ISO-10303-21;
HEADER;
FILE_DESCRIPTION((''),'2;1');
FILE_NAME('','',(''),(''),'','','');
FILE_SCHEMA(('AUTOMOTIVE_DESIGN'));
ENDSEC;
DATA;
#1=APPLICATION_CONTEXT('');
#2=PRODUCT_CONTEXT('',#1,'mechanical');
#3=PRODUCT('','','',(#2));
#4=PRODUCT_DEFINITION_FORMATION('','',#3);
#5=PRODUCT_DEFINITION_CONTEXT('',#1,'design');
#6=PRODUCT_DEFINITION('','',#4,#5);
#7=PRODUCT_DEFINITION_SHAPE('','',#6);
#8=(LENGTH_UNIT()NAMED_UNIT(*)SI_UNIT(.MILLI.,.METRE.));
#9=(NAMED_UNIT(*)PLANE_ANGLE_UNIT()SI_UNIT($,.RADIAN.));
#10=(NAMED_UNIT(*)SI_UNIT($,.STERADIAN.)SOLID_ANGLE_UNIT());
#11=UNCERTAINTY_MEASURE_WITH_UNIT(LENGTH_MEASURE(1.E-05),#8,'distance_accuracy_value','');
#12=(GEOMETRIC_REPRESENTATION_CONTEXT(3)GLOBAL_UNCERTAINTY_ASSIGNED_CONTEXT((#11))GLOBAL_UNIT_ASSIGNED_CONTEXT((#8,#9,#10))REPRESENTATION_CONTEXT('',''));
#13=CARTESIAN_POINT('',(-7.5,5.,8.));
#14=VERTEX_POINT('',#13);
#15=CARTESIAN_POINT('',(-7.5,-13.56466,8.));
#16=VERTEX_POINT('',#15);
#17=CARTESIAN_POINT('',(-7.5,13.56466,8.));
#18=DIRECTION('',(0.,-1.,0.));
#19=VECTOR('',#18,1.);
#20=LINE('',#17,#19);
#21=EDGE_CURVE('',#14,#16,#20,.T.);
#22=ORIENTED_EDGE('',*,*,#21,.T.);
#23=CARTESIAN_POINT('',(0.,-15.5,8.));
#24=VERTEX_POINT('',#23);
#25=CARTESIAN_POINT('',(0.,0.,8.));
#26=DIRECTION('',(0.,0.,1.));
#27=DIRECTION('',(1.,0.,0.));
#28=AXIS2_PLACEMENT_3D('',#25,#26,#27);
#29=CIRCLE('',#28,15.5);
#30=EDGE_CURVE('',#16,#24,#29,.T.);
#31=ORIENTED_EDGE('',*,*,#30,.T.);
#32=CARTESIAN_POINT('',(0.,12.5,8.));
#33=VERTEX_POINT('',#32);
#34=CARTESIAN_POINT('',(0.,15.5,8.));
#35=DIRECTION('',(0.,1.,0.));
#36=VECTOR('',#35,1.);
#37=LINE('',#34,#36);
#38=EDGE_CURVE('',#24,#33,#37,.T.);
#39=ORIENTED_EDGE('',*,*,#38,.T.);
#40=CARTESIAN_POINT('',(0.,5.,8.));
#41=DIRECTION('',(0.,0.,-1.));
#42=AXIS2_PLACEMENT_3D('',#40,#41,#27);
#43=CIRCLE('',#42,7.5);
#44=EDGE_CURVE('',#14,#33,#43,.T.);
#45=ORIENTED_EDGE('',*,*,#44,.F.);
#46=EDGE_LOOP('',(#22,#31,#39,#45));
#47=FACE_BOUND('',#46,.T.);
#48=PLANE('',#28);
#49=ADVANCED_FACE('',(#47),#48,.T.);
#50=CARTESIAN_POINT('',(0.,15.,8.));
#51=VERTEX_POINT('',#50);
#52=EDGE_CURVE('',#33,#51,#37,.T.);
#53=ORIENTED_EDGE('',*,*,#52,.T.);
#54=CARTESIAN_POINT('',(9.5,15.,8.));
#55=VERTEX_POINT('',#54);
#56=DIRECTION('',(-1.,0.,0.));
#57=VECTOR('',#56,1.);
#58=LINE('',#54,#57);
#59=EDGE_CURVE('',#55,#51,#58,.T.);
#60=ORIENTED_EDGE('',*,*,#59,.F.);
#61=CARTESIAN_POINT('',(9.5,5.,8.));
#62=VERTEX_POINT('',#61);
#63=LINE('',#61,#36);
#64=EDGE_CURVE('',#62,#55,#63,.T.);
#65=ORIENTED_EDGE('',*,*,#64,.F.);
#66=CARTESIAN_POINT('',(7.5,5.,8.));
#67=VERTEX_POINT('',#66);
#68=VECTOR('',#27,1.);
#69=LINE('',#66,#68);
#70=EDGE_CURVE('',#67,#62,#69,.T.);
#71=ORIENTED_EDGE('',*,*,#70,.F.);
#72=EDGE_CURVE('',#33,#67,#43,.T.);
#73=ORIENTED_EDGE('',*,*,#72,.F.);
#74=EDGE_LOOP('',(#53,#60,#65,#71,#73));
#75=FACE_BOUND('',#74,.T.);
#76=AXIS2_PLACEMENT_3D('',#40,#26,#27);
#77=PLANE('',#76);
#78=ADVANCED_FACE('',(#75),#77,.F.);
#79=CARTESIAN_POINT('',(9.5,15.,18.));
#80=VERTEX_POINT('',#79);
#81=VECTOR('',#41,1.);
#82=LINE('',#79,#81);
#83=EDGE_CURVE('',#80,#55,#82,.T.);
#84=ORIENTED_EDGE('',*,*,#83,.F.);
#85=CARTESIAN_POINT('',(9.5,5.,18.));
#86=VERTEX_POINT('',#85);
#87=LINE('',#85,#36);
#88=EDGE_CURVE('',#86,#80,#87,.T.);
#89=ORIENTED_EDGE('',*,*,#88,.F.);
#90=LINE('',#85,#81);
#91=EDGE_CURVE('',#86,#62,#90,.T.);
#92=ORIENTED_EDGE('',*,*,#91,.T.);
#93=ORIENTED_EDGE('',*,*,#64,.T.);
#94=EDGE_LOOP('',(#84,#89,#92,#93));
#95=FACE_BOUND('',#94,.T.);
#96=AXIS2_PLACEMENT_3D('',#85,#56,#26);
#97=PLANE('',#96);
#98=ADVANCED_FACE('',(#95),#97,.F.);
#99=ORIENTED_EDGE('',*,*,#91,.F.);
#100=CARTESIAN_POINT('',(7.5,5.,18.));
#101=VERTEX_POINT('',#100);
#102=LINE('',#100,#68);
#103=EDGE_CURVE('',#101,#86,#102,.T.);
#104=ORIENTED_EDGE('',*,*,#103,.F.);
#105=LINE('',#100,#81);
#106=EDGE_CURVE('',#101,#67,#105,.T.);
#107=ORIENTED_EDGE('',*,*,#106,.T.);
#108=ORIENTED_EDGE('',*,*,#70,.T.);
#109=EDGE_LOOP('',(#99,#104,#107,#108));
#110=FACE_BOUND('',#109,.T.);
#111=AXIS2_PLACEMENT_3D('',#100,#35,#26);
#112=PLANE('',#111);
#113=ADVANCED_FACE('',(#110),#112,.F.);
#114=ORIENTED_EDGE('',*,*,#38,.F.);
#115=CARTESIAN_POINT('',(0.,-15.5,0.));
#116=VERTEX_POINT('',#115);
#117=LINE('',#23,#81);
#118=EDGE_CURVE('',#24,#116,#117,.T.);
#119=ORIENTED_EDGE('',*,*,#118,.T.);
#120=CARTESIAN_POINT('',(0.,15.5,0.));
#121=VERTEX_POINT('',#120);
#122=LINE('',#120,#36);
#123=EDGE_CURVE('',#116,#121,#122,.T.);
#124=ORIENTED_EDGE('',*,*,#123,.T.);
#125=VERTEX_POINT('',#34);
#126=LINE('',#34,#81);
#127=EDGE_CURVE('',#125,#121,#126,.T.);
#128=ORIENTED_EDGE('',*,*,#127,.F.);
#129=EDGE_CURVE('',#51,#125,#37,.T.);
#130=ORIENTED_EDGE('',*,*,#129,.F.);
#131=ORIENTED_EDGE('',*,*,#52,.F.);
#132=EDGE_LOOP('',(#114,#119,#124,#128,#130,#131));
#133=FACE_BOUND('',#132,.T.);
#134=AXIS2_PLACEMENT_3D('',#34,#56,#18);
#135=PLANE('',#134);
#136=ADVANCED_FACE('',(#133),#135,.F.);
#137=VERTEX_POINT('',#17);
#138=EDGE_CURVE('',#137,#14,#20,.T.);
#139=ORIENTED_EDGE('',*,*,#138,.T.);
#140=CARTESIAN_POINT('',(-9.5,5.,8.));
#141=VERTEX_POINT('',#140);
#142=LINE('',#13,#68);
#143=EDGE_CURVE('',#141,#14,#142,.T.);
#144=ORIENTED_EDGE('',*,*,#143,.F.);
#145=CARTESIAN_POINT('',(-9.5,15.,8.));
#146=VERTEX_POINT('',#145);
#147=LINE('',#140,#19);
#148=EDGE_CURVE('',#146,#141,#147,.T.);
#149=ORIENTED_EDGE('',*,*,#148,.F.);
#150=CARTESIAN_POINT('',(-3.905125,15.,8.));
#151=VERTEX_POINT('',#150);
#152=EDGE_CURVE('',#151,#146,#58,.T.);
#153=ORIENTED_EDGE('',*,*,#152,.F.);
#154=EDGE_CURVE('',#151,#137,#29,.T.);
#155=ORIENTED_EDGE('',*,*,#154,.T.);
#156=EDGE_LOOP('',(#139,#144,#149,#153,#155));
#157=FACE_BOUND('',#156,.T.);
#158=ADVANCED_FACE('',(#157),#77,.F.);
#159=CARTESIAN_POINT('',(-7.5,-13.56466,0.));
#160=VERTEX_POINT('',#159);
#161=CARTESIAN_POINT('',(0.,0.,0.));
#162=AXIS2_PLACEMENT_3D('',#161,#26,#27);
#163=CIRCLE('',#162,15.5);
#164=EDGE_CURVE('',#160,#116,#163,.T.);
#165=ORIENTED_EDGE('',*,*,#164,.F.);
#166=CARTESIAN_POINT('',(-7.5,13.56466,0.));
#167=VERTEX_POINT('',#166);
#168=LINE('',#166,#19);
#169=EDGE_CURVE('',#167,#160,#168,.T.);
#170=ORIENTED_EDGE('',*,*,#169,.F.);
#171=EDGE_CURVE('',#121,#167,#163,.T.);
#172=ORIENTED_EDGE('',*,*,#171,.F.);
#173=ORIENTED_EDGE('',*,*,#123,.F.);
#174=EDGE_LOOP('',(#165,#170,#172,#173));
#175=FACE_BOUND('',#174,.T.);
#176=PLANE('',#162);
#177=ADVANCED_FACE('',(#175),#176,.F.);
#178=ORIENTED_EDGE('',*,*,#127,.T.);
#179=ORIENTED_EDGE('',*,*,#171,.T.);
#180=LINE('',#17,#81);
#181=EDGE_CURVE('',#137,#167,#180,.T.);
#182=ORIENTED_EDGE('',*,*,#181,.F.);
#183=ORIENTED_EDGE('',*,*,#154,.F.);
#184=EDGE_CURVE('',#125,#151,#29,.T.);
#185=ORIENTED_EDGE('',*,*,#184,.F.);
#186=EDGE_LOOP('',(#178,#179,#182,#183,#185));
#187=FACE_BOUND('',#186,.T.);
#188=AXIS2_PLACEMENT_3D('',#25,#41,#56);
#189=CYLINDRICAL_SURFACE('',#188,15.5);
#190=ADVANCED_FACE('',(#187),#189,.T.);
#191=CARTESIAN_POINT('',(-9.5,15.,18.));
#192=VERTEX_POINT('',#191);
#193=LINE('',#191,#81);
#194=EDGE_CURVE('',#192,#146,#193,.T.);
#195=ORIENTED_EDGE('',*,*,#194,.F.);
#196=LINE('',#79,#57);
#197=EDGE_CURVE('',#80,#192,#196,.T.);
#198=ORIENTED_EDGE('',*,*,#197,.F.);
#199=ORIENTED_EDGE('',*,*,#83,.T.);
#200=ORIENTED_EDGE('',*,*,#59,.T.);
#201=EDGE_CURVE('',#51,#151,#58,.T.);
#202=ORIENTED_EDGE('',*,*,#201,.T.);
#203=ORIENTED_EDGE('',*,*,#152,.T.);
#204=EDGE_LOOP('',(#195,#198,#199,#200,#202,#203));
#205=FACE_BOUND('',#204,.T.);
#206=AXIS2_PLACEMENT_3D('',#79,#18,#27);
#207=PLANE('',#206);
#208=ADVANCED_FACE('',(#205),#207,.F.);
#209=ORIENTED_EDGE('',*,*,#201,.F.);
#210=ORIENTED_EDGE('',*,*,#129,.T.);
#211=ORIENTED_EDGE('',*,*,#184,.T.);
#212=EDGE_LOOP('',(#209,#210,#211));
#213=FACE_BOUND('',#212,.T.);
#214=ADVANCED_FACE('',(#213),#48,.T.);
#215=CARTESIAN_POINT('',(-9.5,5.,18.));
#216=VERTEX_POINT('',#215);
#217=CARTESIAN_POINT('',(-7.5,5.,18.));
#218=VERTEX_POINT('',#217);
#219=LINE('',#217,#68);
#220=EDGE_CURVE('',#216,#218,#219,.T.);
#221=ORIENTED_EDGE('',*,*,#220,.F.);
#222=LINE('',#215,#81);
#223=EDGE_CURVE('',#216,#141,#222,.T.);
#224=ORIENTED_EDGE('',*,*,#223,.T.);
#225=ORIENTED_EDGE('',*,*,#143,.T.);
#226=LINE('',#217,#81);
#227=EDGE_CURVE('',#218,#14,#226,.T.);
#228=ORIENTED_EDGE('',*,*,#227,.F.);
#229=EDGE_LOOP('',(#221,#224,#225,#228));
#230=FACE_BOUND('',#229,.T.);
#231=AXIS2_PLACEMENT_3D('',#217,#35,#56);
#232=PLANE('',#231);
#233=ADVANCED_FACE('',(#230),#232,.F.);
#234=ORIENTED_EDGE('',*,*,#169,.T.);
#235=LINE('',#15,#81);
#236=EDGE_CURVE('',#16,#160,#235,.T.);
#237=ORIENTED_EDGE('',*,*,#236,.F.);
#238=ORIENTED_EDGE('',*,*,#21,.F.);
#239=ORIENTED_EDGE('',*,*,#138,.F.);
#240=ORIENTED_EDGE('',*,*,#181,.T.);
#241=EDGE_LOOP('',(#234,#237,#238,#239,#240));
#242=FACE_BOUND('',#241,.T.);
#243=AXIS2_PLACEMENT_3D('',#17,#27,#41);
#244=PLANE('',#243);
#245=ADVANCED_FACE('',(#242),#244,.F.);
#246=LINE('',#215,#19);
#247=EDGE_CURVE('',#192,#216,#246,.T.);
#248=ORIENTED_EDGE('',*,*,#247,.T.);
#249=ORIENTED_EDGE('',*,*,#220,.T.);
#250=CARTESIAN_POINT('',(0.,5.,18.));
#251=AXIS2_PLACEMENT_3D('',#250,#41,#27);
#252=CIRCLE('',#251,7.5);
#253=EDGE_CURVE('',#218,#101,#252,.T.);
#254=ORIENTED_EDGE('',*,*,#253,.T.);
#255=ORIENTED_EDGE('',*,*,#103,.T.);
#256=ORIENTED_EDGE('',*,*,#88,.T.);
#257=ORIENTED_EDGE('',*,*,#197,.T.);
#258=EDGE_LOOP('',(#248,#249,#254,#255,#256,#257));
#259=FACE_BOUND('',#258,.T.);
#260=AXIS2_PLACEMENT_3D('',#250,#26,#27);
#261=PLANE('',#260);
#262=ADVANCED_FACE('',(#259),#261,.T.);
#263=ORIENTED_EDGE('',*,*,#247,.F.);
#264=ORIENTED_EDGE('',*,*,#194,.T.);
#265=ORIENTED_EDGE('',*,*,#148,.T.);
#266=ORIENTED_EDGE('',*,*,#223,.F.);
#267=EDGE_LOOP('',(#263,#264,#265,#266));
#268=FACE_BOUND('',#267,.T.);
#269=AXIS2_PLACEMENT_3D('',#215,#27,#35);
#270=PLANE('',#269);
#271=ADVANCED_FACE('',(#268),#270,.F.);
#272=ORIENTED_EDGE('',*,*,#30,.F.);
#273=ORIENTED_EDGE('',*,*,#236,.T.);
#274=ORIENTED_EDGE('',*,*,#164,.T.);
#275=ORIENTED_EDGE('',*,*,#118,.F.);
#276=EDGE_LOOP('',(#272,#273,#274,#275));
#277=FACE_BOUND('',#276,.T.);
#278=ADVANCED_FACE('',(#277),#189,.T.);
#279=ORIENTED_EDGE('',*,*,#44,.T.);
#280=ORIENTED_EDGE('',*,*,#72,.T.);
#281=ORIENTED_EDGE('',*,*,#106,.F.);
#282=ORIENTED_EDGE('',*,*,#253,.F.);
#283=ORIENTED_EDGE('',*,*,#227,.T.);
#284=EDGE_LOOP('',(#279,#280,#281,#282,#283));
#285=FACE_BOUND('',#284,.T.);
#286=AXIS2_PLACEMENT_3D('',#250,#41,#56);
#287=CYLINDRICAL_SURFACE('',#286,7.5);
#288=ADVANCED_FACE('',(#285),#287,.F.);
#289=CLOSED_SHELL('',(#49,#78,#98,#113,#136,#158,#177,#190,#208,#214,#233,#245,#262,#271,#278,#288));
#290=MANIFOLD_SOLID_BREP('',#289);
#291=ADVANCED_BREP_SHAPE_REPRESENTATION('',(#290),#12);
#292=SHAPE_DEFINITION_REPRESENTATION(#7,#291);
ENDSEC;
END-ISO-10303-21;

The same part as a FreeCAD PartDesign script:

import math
import FreeCAD as App
import Part
import Sketcher

V = App.Vector

doc = App.newDocument("Part")
body = doc.addObject("PartDesign::Body", "Body")

# Sketch on XY plane
sketch1 = body.newObject("Sketcher::SketchObject", "Sketch")
sketch1.AttachmentSupport = (doc.getObject("XY_Plane"), [""])
sketch1.MapMode = "FlatFace"
sketch1.addGeometry([
    Part.LineSegment(V(0, -15.5, 0), V(0, 15.5, 0)),
    Part.ArcOfCircle(Part.Circle(V(0, 0, 0), V(0, 0, 1), 15.5), math.radians(90), math.radians(118.938528)),
    Part.LineSegment(V(-7.5, 13.56466, 0), V(-7.5, -13.56466, 0)),
    Part.ArcOfCircle(Part.Circle(V(0, 0, 0), V(0, 0, 1), 15.5), math.radians(-118.938528), math.radians(-90)),
], False)
sketch1.addConstraint([
    Sketcher.Constraint("Coincident", 0, 2, 1, 1),
    Sketcher.Constraint("Coincident", 1, 2, 2, 1),
    Sketcher.Constraint("Coincident", 2, 2, 3, 1),
    Sketcher.Constraint("Coincident", 3, 2, 0, 1),
    Sketcher.Constraint("Vertical", 0),
    Sketcher.Constraint("Vertical", 2),
    Sketcher.Constraint("Coincident", 1, 3, -1, 1),
    Sketcher.Constraint("Coincident", 3, 3, -1, 1),
    Sketcher.Constraint("Equal", 1, 3),
    Sketcher.Constraint("PointOnObject", 0, 2, -2),
    Sketcher.Constraint("Radius", 1, 15.5),
    Sketcher.Constraint("DistanceX", 1, 2, -1, 1, 7.5),
])
pad1 = body.newObject("PartDesign::Pad", "Pad")
pad1.Profile = sketch1
pad1.Length = 8

# Sketch on XY plane
sketch2 = body.newObject("Sketcher::SketchObject", "Sketch001")
sketch2.AttachmentSupport = (doc.getObject("XY_Plane"), [""])
sketch2.MapMode = "FlatFace"
sketch2.AttachmentOffset = App.Placement(V(0, 0, 8), App.Rotation())
sketch2.addGeometry([
    Part.LineSegment(V(7.5, 5, 0), V(9.5, 5, 0)),  # 0
    Part.LineSegment(V(9.5, 5, 0), V(9.5, 15, 0)),  # 1
    Part.LineSegment(V(9.5, 15, 0), V(-9.5, 15, 0)),  # 2
    Part.LineSegment(V(-9.5, 15, 0), V(-9.5, 5, 0)),  # 3
    Part.LineSegment(V(-9.5, 5, 0), V(-7.5, 5, 0)),  # 4
    Part.ArcOfCircle(Part.Circle(V(0, 5, 0), V(0, 0, 1), 7.5), math.radians(0), math.radians(180)),  # 5
], False)
sketch2.addConstraint([
    Sketcher.Constraint("Coincident", 0, 2, 1, 1),
    Sketcher.Constraint("Coincident", 1, 2, 2, 1),
    Sketcher.Constraint("Coincident", 2, 2, 3, 1),
    Sketcher.Constraint("Coincident", 3, 2, 4, 1),
    Sketcher.Constraint("Coincident", 4, 2, 5, 2),
    Sketcher.Constraint("Coincident", 5, 1, 0, 1),
    Sketcher.Constraint("Horizontal", 0),
    Sketcher.Constraint("Vertical", 1),
    Sketcher.Constraint("Horizontal", 2),
    Sketcher.Constraint("Vertical", 3),
    Sketcher.Constraint("Horizontal", 4),
    Sketcher.Constraint("Symmetric", 0, 2, 3, 2, -2),
    Sketcher.Constraint("PointOnObject", 5, 3, -2),
    Sketcher.Constraint("Horizontal", 5, 3, 0, 2),
    Sketcher.Constraint("Radius", 5, 7.5),
    Sketcher.Constraint("DistanceX", 0, 1, 0, 2, 2.0),
    Sketcher.Constraint("DistanceY", 1, 1, 1, 2, 10.0),
    Sketcher.Constraint("DistanceY", -1, 1, 5, 3, 5.0),
])
pad2 = body.newObject("PartDesign::Pad", "Pad001")
pad2.Profile = sketch2
pad2.Length = 10

doc.recompute()
